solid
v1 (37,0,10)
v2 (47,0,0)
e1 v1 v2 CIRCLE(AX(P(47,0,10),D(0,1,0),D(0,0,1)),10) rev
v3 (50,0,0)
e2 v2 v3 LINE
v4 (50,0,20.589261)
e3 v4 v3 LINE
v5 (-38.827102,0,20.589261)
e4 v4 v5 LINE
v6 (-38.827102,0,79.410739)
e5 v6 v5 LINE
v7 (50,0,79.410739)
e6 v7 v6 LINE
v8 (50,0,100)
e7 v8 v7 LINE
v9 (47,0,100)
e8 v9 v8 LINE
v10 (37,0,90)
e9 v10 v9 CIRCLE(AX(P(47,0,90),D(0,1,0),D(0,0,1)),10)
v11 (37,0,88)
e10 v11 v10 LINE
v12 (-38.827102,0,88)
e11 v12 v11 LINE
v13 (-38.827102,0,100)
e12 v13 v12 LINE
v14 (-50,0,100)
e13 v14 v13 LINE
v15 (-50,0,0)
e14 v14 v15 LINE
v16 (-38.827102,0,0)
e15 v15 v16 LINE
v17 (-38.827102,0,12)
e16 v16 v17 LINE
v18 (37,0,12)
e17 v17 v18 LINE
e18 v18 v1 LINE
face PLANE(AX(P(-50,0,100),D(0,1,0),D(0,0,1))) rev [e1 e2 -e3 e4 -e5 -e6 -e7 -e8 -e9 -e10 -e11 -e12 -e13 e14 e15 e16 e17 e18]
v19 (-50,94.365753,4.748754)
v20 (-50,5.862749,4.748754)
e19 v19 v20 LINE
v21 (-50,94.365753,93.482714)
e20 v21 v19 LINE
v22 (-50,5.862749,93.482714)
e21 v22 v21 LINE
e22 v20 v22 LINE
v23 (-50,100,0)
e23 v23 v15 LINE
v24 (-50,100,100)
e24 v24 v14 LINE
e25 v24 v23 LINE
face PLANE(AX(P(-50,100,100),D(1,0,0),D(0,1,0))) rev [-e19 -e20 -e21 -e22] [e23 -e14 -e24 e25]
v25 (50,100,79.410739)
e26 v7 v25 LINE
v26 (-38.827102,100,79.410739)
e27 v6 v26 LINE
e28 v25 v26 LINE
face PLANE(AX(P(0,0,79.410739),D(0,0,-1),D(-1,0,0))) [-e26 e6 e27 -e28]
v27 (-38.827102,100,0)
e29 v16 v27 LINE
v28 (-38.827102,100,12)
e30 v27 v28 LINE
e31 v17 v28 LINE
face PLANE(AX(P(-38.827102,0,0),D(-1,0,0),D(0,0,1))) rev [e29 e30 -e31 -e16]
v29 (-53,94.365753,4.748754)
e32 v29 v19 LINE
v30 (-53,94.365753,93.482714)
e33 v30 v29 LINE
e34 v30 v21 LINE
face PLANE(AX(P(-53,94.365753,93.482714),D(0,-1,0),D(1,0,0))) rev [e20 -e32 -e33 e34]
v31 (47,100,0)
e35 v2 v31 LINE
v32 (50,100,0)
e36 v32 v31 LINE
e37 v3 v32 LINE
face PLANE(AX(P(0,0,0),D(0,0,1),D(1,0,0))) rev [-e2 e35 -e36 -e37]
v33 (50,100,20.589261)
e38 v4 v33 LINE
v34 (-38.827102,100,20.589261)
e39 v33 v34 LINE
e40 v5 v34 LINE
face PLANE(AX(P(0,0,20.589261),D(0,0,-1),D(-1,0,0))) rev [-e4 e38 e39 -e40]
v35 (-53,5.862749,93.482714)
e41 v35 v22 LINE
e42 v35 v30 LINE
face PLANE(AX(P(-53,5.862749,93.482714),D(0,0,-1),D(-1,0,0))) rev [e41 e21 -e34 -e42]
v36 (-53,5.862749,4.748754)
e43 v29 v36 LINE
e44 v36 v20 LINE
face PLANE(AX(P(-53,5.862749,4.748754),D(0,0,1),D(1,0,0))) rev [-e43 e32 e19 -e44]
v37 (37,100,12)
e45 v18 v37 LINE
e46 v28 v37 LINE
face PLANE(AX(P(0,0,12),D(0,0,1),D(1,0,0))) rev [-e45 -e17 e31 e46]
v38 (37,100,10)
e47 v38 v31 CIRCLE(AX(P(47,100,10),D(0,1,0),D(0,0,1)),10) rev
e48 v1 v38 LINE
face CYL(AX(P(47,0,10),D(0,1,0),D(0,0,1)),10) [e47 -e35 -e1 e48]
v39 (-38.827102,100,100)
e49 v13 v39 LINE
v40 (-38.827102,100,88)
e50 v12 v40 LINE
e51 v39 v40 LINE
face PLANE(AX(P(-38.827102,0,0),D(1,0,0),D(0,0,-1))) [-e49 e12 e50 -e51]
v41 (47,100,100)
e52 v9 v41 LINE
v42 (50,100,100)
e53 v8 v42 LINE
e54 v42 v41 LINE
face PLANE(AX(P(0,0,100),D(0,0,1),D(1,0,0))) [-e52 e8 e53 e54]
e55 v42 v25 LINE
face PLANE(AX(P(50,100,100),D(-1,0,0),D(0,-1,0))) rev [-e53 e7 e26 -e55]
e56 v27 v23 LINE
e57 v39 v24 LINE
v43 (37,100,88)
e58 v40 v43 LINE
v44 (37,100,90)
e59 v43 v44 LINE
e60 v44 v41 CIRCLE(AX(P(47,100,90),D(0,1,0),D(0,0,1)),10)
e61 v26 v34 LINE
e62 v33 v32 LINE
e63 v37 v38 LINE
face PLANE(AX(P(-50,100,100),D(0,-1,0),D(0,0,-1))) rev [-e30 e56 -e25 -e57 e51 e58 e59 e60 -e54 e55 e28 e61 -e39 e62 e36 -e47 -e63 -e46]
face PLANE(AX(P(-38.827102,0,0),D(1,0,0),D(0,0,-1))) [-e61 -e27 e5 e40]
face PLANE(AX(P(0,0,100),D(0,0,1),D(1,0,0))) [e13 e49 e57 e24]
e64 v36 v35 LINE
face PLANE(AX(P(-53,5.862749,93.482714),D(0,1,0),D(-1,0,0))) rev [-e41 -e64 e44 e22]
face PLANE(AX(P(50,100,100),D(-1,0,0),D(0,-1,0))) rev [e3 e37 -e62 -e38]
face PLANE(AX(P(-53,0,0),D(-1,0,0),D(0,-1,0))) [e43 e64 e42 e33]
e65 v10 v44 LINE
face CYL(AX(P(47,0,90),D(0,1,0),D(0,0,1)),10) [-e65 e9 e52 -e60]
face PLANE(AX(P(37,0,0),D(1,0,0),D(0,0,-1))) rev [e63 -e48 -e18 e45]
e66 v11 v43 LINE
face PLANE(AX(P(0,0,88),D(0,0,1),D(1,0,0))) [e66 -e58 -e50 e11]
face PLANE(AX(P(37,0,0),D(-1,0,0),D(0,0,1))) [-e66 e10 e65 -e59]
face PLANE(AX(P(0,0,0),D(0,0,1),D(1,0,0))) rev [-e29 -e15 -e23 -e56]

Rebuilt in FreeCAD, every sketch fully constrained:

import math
import FreeCAD as App
import Part
import Sketcher
from FreeCAD import Vector
Q = App.Units.Quantity

doc = App.newDocument("Part")
params = doc.addObject("Spreadsheet::Sheet", "Params")
for row, (alias, value) in enumerate([
    ("sketch1_width", "100 mm"),
    ("pad1_length", "100 mm"),
    ("sketch2_radius", "10 mm"),
    ("sketch2_height", "12 mm"),
    ("pocket1_length", "100 mm"),
    ("pad2_length", "3 mm"),
], start=1):
    params.set(f"A{row}", alias)
    params.set(f"B{row}", "=" + value)
    params.setAlias(f"B{row}", alias)

body = doc.addObject("PartDesign::Body", "Body")

# Sketch on XY plane
sketch1 = doc.addObject("Sketcher::SketchObject", "Sketch")
body.addObject(sketch1)
sketch1.AttachmentSupport = (doc.XY_Plane, [""])
sketch1.MapMode = "FlatFace"
sketch1.addGeometry(Part.LineSegment(Vector(-50, 100, 0), Vector(-50, 0, 0)), False)
sketch1.addGeometry(Part.LineSegment(Vector(-50, 0, 0), Vector(50, 0, 0)), False)
sketch1.addGeometry(Part.LineSegment(Vector(50, 0, 0), Vector(50, 100, 0)), False)
sketch1.addGeometry(Part.LineSegment(Vector(50, 100, 0), Vector(-50, 100, 0)), False)
sketch1.addConstraint(Sketcher.Constraint("Coincident", 0, 2, 1, 1))
sketch1.addConstraint(Sketcher.Constraint("Coincident", 1, 2, 2, 1))
sketch1.addConstraint(Sketcher.Constraint("Coincident", 2, 2, 3, 1))
sketch1.addConstraint(Sketcher.Constraint("Coincident", 3, 2, 0, 1))
sketch1.addConstraint(Sketcher.Constraint("Vertical", 0))
sketch1.addConstraint(Sketcher.Constraint("Horizontal", 1))
sketch1.addConstraint(Sketcher.Constraint("Vertical", 2))
sketch1.addConstraint(Sketcher.Constraint("Horizontal", 3))
sketch1.addConstraint(Sketcher.Constraint("Symmetric", 0, 2, 1, 2, -1, 1))
sketch1.addConstraint(Sketcher.Constraint("Equal", 3, 0))
sketch1.addConstraint(Sketcher.Constraint("DistanceX", 1, 1, 1, 2, Q("100 mm")))
sketch1.setExpression("Constraints[10]", "Params.sketch1_width")
pad1 = doc.addObject("PartDesign::Pad", "Pad")
body.addObject(pad1)
pad1.Profile = sketch1
pad1.setExpression("Length", "Params.pad1_length")

# Sketch on XZ plane
sketch2 = doc.addObject("Sketcher::SketchObject", "Sketch001")
body.addObject(sketch2)
sketch2.AttachmentSupport = (doc.XZ_Plane, [""])
sketch2.MapMode = "FlatFace"
sketch2.AttachmentOffset = App.Placement(Vector(0, 0, -100), App.Rotation())
sketch2.addGeometry(Part.LineSegment(Vector(-38.827102, 20.589261, 0), Vector(-38.827102, 79.410739, 0)), False)
sketch2.addGeometry(Part.LineSegment(Vector(-38.827102, 79.410739, 0), Vector(50, 79.410739, 0)), False)
sketch2.addGeometry(Part.LineSegment(Vector(50, 79.410739, 0), Vector(50, 20.589261, 0)), False)
sketch2.addGeometry(Part.LineSegment(Vector(50, 20.589261, 0), Vector(-38.827102, 20.589261, 0)), False)
sketch2.addGeometry(Part.LineSegment(Vector(-38.827102, 88, 0), Vector(-38.827102, 100, 0)), False)
sketch2.addGeometry(Part.LineSegment(Vector(-38.827102, 100, 0), Vector(47, 100, 0)), False)
sketch2.addGeometry(Part.ArcOfCircle(Part.Circle(Vector(47, 90, 0), Vector(0, 0, 1), 10), math.radians(90), math.radians(180)), False)
sketch2.addGeometry(Part.LineSegment(Vector(37, 90, 0), Vector(37, 88, 0)), False)
sketch2.addGeometry(Part.LineSegment(Vector(37, 88, 0), Vector(-38.827102, 88, 0)), False)
sketch2.addGeometry(Part.LineSegment(Vector(47, 0, 0), Vector(-38.827102, 0, 0)), False)
sketch2.addGeometry(Part.LineSegment(Vector(-38.827102, 0, 0), Vector(-38.827102, 12, 0)), False)
sketch2.addGeometry(Part.LineSegment(Vector(-38.827102, 12, 0), Vector(37, 12, 0)), False)
sketch2.addGeometry(Part.LineSegment(Vector(37, 12, 0), Vector(37, 10, 0)), False)
sketch2.addGeometry(Part.ArcOfCircle(Part.Circle(Vector(47, 10, 0), Vector(0, 0, 1), 10), math.radians(180), math.radians(270)), False)
sketch2.addConstraint(Sketcher.Constraint("Coincident", 0, 2, 1, 1))
sketch2.addConstraint(Sketcher.Constraint("Coincident", 1, 2, 2, 1))
sketch2.addConstraint(Sketcher.Constraint("Coincident", 2, 2, 3, 1))
sketch2.addConstraint(Sketcher.Constraint("Coincident", 3, 2, 0, 1))
sketch2.addConstraint(Sketcher.Constraint("Coincident", 4, 2, 5, 1))
sketch2.addConstraint(Sketcher.Constraint("Tangent", 5, 2, 6, 1))
sketch2.addConstraint(Sketcher.Constraint("Tangent", 6, 2, 7, 1))
sketch2.addConstraint(Sketcher.Constraint("Coincident", 7, 2, 8, 1))
sketch2.addConstraint(Sketcher.Constraint("Coincident", 8, 2, 4, 1))
sketch2.addConstraint(Sketcher.Constraint("Coincident", 9, 2, 10, 1))
sketch2.addConstraint(Sketcher.Constraint("Coincident", 10, 2, 11, 1))
sketch2.addConstraint(Sketcher.Constraint("Coincident", 11, 2, 12, 1))
sketch2.addConstraint(Sketcher.Constraint("Tangent", 12, 2, 13, 1))
sketch2.addConstraint(Sketcher.Constraint("Tangent", 13, 2, 9, 1))
sketch2.addConstraint(Sketcher.Constraint("Vertical", 0))
sketch2.addConstraint(Sketcher.Constraint("Horizontal", 1))
sketch2.addConstraint(Sketcher.Constraint("Vertical", 2))
sketch2.addConstraint(Sketcher.Constraint("Horizontal", 3))
sketch2.addConstraint(Sketcher.Constraint("Vertical", 4))
sketch2.addConstraint(Sketcher.Constraint("Horizontal", 5))
sketch2.addConstraint(Sketcher.Constraint("Vertical", 7))
sketch2.addConstraint(Sketcher.Constraint("Horizontal", 8))
sketch2.addConstraint(Sketcher.Constraint("Horizontal", 9))
sketch2.addConstraint(Sketcher.Constraint("Vertical", 10))
sketch2.addConstraint(Sketcher.Constraint("Horizontal", 11))
sketch2.addConstraint(Sketcher.Constraint("Vertical", 12))
sketch2.addConstraint(Sketcher.Constraint("Equal", 6, 13))
sketch2.addConstraint(Sketcher.Constraint("PointOnObject", 9, 2, -1))
sketch2.addConstraint(Sketcher.Constraint("Vertical", 6, 3, 13, 3))
sketch2.addConstraint(Sketcher.Constraint("Vertical", 3, 2, 4, 2))
sketch2.addConstraint(Sketcher.Constraint("Vertical", 8, 2, 9, 2))
sketch2.addConstraint(Sketcher.Constraint("Equal", 4, 10))
sketch2.addConstraint(Sketcher.Constraint("Radius", 6, Q("10 mm")))
sketch2.addConstraint(Sketcher.Constraint("DistanceY", 4, 1, 4, 2, Q("12 mm")))
sketch2.addConstraint(Sketcher.Constraint("DistanceX", -1, 1, 6, 3, Q("47 mm")))
sketch2.addConstraint(Sketcher.Constraint("DistanceY", -1, 1, 6, 3, Q("90 mm")))
sketch2.addConstraint(Sketcher.Constraint("DistanceX", -1, 1, 1, 2, Q("50 mm")))
sketch2.addConstraint(Sketcher.Constraint("DistanceY", 0, 1, 0, 2, Q("58.821478 mm")))
sketch2.addConstraint(Sketcher.Constraint("DistanceX", 1, 1, 1, 2, Q("88.827102 mm")))
sketch2.addConstraint(Sketcher.Constraint("DistanceY", -1, 1, 0, 2, Q("79.410739 mm")))
sketch2.setExpression("Constraints[32]", "Params.sketch2_radius")
sketch2.setExpression("Constraints[33]", "Params.sketch2_height")
pocket1 = doc.addObject("PartDesign::Pocket", "Pocket")
body.addObject(pocket1)
pocket1.Profile = sketch2
pocket1.setExpression("Length", "Params.pocket1_length")
pocket1.Reversed = True

# Sketch on YZ plane
sketch3 = doc.addObject("Sketcher::SketchObject", "Sketch002")
body.addObject(sketch3)
sketch3.AttachmentSupport = (doc.YZ_Plane, [""])
sketch3.MapMode = "FlatFace"
sketch3.AttachmentOffset = App.Placement(Vector(0, 0, -50), App.Rotation())
sketch3.addGeometry(Part.LineSegment(Vector(94.365753, 4.748754, 0), Vector(5.862749, 4.748754, 0)), False)
sketch3.addGeometry(Part.LineSegment(Vector(5.862749, 4.748754, 0), Vector(5.862749, 93.482714, 0)), False)
sketch3.addGeometry(Part.LineSegment(Vector(5.862749, 93.482714, 0), Vector(94.365753, 93.482714, 0)), False)
sketch3.addGeometry(Part.LineSegment(Vector(94.365753, 93.482714, 0), Vector(94.365753, 4.748754, 0)), False)
sketch3.addConstraint(Sketcher.Constraint("Coincident", 0, 2, 1, 1))
sketch3.addConstraint(Sketcher.Constraint("Coincident", 1, 2, 2, 1))
sketch3.addConstraint(Sketcher.Constraint("Coincident", 2, 2, 3, 1))
sketch3.addConstraint(Sketcher.Constraint("Coincident", 3, 2, 0, 1))
sketch3.addConstraint(Sketcher.Constraint("Horizontal", 0))
sketch3.addConstraint(Sketcher.Constraint("Vertical", 1))
sketch3.addConstraint(Sketcher.Constraint("Horizontal", 2))
sketch3.addConstraint(Sketcher.Constraint("Vertical", 3))
sketch3.addConstraint(Sketcher.Constraint("DistanceY", 1, 1, 1, 2, Q("88.73396 mm")))
sketch3.addConstraint(Sketcher.Constraint("DistanceX", 0, 2, 0, 1, Q("88.503004 mm")))
sketch3.addConstraint(Sketcher.Constraint("DistanceX", -1, 1, 0, 2, Q("5.862749 mm")))
sketch3.addConstraint(Sketcher.Constraint("DistanceY", -1, 1, 0, 2, Q("4.748754 mm")))
pad2 = doc.addObject("PartDesign::Pad", "Pad001")
body.addObject(pad2)
pad2.Profile = sketch3
pad2.setExpression("Length", "Params.pad2_length")
pad2.Reversed = True

doc.recompute()
